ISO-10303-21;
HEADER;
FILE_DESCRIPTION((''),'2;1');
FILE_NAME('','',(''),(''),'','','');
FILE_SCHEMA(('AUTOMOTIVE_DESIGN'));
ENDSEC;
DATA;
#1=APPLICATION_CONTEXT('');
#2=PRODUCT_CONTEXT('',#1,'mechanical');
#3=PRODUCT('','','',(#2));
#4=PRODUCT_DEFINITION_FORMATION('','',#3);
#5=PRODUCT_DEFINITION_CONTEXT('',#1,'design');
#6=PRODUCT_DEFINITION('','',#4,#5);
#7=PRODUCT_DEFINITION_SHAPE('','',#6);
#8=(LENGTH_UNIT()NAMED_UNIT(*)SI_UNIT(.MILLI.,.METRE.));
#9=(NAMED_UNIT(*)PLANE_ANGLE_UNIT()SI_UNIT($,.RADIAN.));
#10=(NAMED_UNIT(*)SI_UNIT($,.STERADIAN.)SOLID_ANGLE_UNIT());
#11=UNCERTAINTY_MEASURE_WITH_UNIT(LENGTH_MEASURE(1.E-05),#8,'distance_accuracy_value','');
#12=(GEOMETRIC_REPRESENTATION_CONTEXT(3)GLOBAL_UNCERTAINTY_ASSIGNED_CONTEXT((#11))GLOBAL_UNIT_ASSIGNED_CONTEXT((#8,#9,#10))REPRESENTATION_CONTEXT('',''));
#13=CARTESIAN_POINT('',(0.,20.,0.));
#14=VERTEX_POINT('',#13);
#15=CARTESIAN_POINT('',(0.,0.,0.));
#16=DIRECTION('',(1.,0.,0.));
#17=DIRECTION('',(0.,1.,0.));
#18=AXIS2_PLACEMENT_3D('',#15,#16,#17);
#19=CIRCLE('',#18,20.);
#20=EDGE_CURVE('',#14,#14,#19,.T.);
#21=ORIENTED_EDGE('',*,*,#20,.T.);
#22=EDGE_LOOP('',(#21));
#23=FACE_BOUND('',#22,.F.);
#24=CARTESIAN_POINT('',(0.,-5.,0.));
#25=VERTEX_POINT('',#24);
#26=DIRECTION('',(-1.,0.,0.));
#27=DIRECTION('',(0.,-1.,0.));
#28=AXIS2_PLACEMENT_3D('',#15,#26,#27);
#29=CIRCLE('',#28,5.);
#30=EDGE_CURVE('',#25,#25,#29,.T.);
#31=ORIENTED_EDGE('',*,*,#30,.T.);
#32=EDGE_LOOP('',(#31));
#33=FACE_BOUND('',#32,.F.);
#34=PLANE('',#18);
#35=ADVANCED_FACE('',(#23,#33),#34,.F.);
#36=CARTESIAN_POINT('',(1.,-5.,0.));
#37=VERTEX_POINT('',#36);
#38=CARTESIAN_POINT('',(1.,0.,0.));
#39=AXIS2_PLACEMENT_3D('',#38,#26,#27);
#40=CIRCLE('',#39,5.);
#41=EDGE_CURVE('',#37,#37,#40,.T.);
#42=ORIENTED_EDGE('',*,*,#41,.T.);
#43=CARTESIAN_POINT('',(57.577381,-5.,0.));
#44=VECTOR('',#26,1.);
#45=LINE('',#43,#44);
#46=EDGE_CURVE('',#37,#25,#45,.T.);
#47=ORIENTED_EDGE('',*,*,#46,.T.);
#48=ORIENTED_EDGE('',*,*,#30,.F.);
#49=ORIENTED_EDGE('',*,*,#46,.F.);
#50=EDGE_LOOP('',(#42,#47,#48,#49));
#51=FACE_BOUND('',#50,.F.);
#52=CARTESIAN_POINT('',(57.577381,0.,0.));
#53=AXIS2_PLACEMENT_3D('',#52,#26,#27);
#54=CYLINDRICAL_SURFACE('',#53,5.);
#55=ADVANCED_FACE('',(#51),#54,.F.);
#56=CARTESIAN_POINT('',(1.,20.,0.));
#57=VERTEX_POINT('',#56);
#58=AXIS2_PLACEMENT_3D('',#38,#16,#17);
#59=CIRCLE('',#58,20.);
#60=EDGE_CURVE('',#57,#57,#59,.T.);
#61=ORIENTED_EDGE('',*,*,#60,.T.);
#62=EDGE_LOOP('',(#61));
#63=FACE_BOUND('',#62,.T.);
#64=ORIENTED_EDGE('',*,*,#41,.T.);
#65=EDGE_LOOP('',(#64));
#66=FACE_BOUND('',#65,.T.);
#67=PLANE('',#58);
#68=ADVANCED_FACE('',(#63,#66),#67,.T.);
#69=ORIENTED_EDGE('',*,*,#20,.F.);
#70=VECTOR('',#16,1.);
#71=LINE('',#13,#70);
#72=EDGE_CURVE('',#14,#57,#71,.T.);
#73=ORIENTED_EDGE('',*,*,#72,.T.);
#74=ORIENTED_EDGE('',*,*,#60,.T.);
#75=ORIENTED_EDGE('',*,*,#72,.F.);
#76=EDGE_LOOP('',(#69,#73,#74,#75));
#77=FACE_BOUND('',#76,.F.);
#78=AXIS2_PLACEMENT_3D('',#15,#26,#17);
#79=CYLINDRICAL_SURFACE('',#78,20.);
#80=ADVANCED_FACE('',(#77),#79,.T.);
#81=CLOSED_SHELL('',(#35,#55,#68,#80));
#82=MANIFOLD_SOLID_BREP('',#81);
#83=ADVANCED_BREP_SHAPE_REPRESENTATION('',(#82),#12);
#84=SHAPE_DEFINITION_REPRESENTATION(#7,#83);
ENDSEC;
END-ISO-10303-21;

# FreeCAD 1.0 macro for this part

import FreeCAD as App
import Part
import Sketcher
Q = App.Units.Quantity

doc = App.newDocument("Part")
params = doc.addObject("Spreadsheet::Sheet", "Params")
for row, (alias, value) in enumerate([
    ("sketch1_diameter", "40 mm"),
    ("pad1_length", "1 mm"),
    ("sketch2_diameter", "10 mm"),
    ("hole_diameter", "10 mm"),
], start=1):
    params.set(f"A{row}", alias)
    params.set(f"B{row}", "=" + value)
    params.setAlias(f"B{row}", alias)

body = doc.addObject("PartDesign::Body", "Body")

# Sketch on YZ plane
sketch1 = body.newObject("Sketcher::SketchObject", "Sketch")
sketch1.AttachmentSupport = (doc.getObject("YZ_Plane"), [""])
sketch1.MapMode = "FlatFace"
sketch1.addGeometry(Part.Circle(App.Vector(0, 0, 0), App.Vector(0, 0, 1), 20), False)
sketch1.addConstraint(Sketcher.Constraint("Coincident", 0, 3, -1, 1))
sketch1.addConstraint(Sketcher.Constraint("Diameter", 0, Q("40 mm")))
sketch1.setExpression("Constraints[1]", "Params.sketch1_diameter")
pad1 = body.newObject("PartDesign::Pad", "Pad")
pad1.Profile = sketch1
pad1.setExpression("Length", "Params.pad1_length")

# Sketch on YZ plane
sketch2 = body.newObject("Sketcher::SketchObject", "Sketch001")
sketch2.AttachmentSupport = (doc.getObject("YZ_Plane"), [""])
sketch2.MapMode = "FlatFace"
sketch2.AttachmentOffset = App.Placement(App.Vector(0, 0, 1), App.Rotation())
sketch2.addGeometry(Part.Circle(App.Vector(0, 0, 0), App.Vector(0, 0, 1), 5), False)
sketch2.addConstraint(Sketcher.Constraint("Coincident", 0, 3, -1, 1))
sketch2.addConstraint(Sketcher.Constraint("Diameter", 0, Q("10 mm")))
sketch2.setExpression("Constraints[1]", "Params.sketch2_diameter")
doc.recompute()
hole = body.newObject("PartDesign::Hole", "Hole")
hole.Profile = sketch2
hole.ThreadType = "None"
hole.setExpression("Diameter", "Params.hole_diameter")
hole.DepthType = "ThroughAll"

doc.recompute()
